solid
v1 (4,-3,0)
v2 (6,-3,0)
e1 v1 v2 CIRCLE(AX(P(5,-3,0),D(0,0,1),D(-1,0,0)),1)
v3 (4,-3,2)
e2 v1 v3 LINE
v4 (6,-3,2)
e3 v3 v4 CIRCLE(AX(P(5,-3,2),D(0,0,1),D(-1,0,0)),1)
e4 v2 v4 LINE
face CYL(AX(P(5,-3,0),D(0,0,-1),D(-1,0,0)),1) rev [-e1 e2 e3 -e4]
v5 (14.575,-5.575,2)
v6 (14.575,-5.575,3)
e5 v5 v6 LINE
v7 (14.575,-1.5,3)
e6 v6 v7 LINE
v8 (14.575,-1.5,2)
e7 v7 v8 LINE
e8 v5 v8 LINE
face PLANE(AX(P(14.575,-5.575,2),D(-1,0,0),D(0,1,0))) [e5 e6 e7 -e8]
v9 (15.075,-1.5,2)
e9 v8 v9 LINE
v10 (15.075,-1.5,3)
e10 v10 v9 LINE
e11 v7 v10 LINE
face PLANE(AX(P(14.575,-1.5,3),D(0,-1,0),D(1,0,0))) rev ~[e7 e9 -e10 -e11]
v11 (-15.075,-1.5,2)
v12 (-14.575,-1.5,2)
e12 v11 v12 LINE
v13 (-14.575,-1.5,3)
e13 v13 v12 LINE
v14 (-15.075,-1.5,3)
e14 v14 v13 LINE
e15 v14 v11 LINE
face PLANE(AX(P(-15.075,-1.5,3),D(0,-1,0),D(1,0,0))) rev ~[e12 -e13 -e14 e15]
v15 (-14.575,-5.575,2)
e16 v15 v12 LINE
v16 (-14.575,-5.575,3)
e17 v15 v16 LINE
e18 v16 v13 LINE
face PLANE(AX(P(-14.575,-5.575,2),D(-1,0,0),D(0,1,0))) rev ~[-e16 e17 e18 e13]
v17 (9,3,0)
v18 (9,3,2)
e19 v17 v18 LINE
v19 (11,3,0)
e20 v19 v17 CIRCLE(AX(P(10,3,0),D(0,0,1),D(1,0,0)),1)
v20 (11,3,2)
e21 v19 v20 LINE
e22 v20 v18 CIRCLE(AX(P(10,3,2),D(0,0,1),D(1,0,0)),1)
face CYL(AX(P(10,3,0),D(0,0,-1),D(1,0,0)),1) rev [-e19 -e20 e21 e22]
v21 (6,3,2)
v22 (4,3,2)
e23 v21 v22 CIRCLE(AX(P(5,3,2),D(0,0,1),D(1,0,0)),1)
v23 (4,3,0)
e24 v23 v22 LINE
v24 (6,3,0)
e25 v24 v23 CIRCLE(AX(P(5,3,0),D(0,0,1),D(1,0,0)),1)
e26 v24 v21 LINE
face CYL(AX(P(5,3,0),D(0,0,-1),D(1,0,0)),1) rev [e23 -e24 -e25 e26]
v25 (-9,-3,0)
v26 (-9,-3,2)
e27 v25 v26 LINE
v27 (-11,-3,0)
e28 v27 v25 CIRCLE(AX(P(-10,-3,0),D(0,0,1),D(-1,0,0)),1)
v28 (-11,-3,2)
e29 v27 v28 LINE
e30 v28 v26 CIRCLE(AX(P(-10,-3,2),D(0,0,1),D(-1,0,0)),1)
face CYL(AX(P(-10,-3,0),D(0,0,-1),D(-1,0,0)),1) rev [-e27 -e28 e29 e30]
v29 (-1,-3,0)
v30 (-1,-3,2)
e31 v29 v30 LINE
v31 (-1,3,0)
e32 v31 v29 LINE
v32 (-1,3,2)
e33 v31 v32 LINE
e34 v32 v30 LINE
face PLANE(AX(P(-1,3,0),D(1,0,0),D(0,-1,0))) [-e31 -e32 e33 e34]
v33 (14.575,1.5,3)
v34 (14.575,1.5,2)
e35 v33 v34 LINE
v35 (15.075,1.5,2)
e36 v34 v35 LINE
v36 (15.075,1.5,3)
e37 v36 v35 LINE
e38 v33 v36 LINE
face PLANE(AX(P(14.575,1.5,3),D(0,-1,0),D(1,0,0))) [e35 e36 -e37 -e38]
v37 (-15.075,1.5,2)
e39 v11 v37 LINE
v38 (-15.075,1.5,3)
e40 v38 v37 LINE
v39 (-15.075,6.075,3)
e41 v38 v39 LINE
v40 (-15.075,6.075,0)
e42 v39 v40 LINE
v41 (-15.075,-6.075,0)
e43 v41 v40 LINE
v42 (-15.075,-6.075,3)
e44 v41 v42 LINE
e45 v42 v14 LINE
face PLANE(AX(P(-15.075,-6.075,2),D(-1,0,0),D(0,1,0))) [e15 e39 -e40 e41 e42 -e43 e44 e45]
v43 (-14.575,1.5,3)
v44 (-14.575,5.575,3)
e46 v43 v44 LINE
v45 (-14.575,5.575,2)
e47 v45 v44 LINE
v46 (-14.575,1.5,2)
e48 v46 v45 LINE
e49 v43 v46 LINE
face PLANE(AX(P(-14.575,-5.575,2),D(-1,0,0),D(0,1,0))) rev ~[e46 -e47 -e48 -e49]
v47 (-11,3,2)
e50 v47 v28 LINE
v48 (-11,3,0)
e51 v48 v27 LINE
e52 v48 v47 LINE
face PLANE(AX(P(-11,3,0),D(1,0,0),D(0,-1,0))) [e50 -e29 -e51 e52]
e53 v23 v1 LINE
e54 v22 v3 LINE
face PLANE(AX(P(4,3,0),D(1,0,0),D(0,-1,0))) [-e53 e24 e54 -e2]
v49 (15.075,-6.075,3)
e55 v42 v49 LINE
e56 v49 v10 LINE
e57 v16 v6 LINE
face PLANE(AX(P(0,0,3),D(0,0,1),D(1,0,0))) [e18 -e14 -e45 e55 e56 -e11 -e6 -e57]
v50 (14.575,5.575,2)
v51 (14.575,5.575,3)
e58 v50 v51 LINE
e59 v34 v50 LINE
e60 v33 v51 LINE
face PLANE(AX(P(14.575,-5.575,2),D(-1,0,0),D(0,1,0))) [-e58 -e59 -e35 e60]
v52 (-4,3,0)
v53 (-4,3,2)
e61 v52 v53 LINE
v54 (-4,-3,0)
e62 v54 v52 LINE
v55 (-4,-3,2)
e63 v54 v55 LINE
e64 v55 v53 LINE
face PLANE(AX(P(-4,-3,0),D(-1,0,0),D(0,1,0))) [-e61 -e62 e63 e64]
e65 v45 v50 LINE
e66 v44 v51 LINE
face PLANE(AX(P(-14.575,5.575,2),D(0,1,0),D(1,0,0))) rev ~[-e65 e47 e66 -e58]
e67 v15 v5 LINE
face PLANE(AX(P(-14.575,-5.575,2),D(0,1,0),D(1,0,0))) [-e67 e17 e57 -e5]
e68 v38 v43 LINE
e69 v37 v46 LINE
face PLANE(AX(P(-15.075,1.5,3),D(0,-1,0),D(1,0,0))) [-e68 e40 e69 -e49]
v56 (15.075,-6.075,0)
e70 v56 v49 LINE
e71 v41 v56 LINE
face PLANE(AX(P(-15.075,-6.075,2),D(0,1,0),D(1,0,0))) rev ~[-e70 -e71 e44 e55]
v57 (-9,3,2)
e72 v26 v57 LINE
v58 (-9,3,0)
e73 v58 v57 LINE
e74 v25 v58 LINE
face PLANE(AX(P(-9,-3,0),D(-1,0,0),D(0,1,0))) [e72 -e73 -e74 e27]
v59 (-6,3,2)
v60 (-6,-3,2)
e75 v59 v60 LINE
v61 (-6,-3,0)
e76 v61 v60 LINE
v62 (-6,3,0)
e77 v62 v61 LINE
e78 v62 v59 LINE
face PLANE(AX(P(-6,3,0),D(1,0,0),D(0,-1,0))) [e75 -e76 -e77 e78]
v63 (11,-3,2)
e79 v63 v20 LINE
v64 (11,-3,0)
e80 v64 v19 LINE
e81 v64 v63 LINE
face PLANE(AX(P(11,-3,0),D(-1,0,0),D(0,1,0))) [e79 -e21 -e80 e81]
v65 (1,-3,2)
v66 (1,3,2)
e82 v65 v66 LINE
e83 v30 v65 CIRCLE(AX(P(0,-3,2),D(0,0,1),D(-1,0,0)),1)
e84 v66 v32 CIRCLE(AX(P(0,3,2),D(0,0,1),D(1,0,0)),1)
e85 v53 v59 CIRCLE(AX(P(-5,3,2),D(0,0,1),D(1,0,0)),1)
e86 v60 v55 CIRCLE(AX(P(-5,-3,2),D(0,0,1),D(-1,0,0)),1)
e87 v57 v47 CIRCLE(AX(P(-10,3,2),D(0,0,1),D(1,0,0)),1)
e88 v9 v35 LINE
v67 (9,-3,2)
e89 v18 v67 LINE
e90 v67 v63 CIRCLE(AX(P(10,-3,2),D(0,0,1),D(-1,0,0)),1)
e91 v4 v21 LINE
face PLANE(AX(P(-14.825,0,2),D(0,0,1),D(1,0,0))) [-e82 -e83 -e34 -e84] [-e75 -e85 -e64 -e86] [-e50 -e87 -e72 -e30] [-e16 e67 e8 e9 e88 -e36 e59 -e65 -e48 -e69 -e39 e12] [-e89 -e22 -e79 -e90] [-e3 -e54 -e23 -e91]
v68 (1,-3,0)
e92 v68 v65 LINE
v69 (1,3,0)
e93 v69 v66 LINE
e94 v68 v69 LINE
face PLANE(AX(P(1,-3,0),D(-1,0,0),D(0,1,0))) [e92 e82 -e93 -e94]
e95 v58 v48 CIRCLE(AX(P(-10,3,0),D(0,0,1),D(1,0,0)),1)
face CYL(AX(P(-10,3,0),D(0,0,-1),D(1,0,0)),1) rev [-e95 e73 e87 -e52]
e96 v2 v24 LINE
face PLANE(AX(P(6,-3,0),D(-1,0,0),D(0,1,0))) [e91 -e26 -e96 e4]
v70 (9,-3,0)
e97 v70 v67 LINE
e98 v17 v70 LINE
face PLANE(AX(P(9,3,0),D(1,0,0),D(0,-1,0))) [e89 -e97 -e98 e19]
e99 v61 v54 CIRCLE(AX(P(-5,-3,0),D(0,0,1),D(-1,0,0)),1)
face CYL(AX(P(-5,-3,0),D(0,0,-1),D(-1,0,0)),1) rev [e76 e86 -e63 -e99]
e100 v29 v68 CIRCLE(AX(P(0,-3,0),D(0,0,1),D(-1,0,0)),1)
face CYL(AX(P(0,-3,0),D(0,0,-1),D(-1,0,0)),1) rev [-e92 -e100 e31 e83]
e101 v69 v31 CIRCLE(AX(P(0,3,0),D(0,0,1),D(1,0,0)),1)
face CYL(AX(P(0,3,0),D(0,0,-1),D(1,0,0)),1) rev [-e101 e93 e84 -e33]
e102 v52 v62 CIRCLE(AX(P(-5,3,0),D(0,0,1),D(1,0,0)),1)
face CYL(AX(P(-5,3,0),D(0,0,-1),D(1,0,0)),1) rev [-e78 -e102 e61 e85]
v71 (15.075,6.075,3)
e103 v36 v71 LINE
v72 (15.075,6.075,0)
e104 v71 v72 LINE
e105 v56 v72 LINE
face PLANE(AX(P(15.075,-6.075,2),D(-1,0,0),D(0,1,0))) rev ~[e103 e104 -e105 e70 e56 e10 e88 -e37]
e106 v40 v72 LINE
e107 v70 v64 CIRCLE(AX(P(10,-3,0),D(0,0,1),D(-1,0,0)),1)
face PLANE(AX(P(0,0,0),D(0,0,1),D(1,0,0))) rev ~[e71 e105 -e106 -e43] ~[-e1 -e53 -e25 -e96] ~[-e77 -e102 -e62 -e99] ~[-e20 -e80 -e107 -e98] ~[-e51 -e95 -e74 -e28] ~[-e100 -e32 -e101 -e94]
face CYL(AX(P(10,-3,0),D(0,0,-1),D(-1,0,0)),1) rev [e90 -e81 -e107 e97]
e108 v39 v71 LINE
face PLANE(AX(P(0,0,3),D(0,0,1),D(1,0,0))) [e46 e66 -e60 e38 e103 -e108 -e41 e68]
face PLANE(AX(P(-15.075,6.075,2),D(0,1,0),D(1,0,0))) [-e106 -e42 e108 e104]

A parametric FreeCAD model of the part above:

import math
import FreeCAD as App
import Part
import Sketcher

V = App.Vector
Q = App.Units.Quantity

doc = App.newDocument("Part")
params = doc.addObject("Spreadsheet::Sheet", "Params")
for row, (alias, value) in enumerate([
    ("sketch1_width", "30.15 mm"),
    ("sketch1_height", "12.15 mm"),
    ("pad1_length", "2 mm"),
    ("sketch2_width", "30.15 mm"),
    ("sketch2_width2", "29.15 mm"),
    ("sketch2_height", "12.15 mm"),
    ("sketch2_height2", "11.15 mm"),
    ("pad2_length", "1 mm"),
    ("sketch3_radius", "1 mm"),
    ("sketch3_height", "6 mm"),
    ("pocket1_length", "2 mm"),
    ("sketch4_height", "3 mm"),
    ("sketch4_width", "0.5 mm"),
    ("pocket2_length", "1 mm"),
], start=1):
    params.set(f"A{row}", alias)
    params.set(f"B{row}", "=" + value)
    params.setAlias(f"B{row}", alias)

body = doc.addObject("PartDesign::Body", "Body")

# Sketch on XY plane
sketch1 = body.newObject("Sketcher::SketchObject", "Sketch")
sketch1.AttachmentSupport = (doc.getObject("XY_Plane"), [""])
sketch1.MapMode = "FlatFace"
sketch1.addGeometry([
    Part.LineSegment(V(-15, 6, 0), V(-15, -6, 0)),
    Part.LineSegment(V(-15, -6, 0), V(15, -6, 0)),
    Part.LineSegment(V(15, -6, 0), V(15, 6, 0)),
    Part.LineSegment(V(15, 6, 0), V(-15, 6, 0)),
], False)
sketch1.addConstraint([
    Sketcher.Constraint("Coincident", 0, 2, 1, 1),
    Sketcher.Constraint("Coincident", 1, 2, 2, 1),
    Sketcher.Constraint("Coincident", 2, 2, 3, 1),
    Sketcher.Constraint("Coincident", 3, 2, 0, 1),
    Sketcher.Constraint("Vertical", 0),
    Sketcher.Constraint("Horizontal", 1),
    Sketcher.Constraint("Vertical", 2),
    Sketcher.Constraint("Horizontal", 3),
    Sketcher.Constraint("Symmetric", 0, 2, 2, 2, -1, 1),
    Sketcher.Constraint("DistanceX", 1, 1, 1, 2, Q("30.15 mm")),
    Sketcher.Constraint("DistanceY", 0, 2, 0, 1, Q("12.15 mm")),
])
sketch1.setExpression("Constraints[9]", "Params.sketch1_width")
sketch1.setExpression("Constraints[10]", "Params.sketch1_height")
pad1 = body.newObject("PartDesign::Pad", "Pad")
pad1.Profile = sketch1
pad1.setExpression("Length", "Params.pad1_length")

# Sketch on XY plane
sketch2 = body.newObject("Sketcher::SketchObject", "Sketch001")
sketch2.AttachmentSupport = (doc.getObject("XY_Plane"), [""])
sketch2.MapMode = "FlatFace"
sketch2.AttachmentOffset = App.Placement(V(0, 0, 2), App.Rotation())
sketch2.addGeometry([
    Part.LineSegment(V(-15, 6, 0), V(-15, -6, 0)),  # 0
    Part.LineSegment(V(-15, -6, 0), V(15, -6, 0)),  # 1
    Part.LineSegment(V(15, -6, 0), V(15, 6, 0)),  # 2
    Part.LineSegment(V(15, 6, 0), V(-15, 6, 0)),  # 3
    Part.LineSegment(V(15, -6, 0), V(-15, -6, 0)),  # 4
    Part.LineSegment(V(-15, -6, 0), V(-15, 6, 0)),  # 5
    Part.LineSegment(V(-15, 6, 0), V(15, 6, 0)),  # 6
    Part.LineSegment(V(15, 6, 0), V(15, -6, 0)),  # 7
], False)
sketch2.addConstraint([
    Sketcher.Constraint("Coincident", 0, 2, 1, 1),
    Sketcher.Constraint("Coincident", 1, 2, 2, 1),
    Sketcher.Constraint("Coincident", 2, 2, 3, 1),
    Sketcher.Constraint("Coincident", 3, 2, 0, 1),
    Sketcher.Constraint("Coincident", 4, 2, 5, 1),
    Sketcher.Constraint("Coincident", 5, 2, 6, 1),
    Sketcher.Constraint("Coincident", 6, 2, 7, 1),
    Sketcher.Constraint("Coincident", 7, 2, 4, 1),
    Sketcher.Constraint("Vertical", 0),
    Sketcher.Constraint("Horizontal", 1),
    Sketcher.Constraint("Vertical", 2),
    Sketcher.Constraint("Horizontal", 3),
    Sketcher.Constraint("Horizontal", 4),
    Sketcher.Constraint("Vertical", 5),
    Sketcher.Constraint("Horizontal", 6),
    Sketcher.Constraint("Vertical", 7),
    Sketcher.Constraint("Symmetric", 0, 2, 2, 2, -1, 1),
    Sketcher.Constraint("Symmetric", 4, 2, 6, 2, -1, 1),
    Sketcher.Constraint("DistanceX", 1, 1, 1, 2, Q("30.15 mm")),
    Sketcher.Constraint("DistanceX", 4, 2, 4, 1, Q("29.15 mm")),
    Sketcher.Constraint("DistanceY", 0, 2, 0, 1, Q("12.15 mm")),
    Sketcher.Constraint("DistanceY", 5, 1, 5, 2, Q("11.15 mm")),
])
sketch2.setExpression("Constraints[18]", "Params.sketch2_width")
sketch2.setExpression("Constraints[19]", "Params.sketch2_width2")
sketch2.setExpression("Constraints[20]", "Params.sketch2_height")
sketch2.setExpression("Constraints[21]", "Params.sketch2_height2")
pad2 = body.newObject("PartDesign::Pad", "Pad001")
pad2.Profile = sketch2
pad2.setExpression("Length", "Params.pad2_length")

# Sketch on XY plane
sketch3 = body.newObject("Sketcher::SketchObject", "Sketch002")
sketch3.AttachmentSupport = (doc.getObject("XY_Plane"), [""])
sketch3.MapMode = "FlatFace"
sketch3.addGeometry([
    Part.LineSegment(V(1, 3, 0), V(1, -3, 0)),  # 0
    Part.ArcOfCircle(Part.Circle(V(0, -3, 0), V(0, 0, 1), 1), math.radians(180), math.radians(360)),  # 1
    Part.LineSegment(V(-1, -3, 0), V(-1, 3, 0)),  # 2
    Part.ArcOfCircle(Part.Circle(V(0, 3, 0), V(0, 0, 1), 1), math.radians(0), math.radians(180)),  # 3
    Part.LineSegment(V(6, 3, 0), V(6, -3, 0)),  # 4
    Part.ArcOfCircle(Part.Circle(V(5, -3, 0), V(0, 0, 1), 1), math.radians(180), math.radians(360)),  # 5
    Part.LineSegment(V(4, -3, 0), V(4, 3, 0)),  # 6
    Part.ArcOfCircle(Part.Circle(V(5, 3, 0), V(0, 0, 1), 1), math.radians(0), math.radians(180)),  # 7
    Part.LineSegment(V(11, 3, 0), V(11, -3, 0)),  # 8
    Part.ArcOfCircle(Part.Circle(V(10, -3, 0), V(0, 0, 1), 1), math.radians(180), math.radians(360)),  # 9
    Part.LineSegment(V(9, -3, 0), V(9, 3, 0)),  # 10
    Part.ArcOfCircle(Part.Circle(V(10, 3, 0), V(0, 0, 1), 1), math.radians(0), math.radians(180)),  # 11
    Part.LineSegment(V(-4, 3, 0), V(-4, -3, 0)),  # 12
    Part.ArcOfCircle(Part.Circle(V(-5, -3, 0), V(0, 0, 1), 1), math.radians(180), math.radians(360)),  # 13
    Part.LineSegment(V(-6, -3, 0), V(-6, 3, 0)),  # 14
    Part.ArcOfCircle(Part.Circle(V(-5, 3, 0), V(0, 0, 1), 1), math.radians(0), math.radians(180)),  # 15
    Part.LineSegment(V(-9, 3, 0), V(-9, -3, 0)),  # 16
    Part.ArcOfCircle(Part.Circle(V(-10, -3, 0), V(0, 0, 1), 1), math.radians(180), math.radians(360)),  # 17
    Part.LineSegment(V(-11, -3, 0), V(-11, 3, 0)),  # 18
    Part.ArcOfCircle(Part.Circle(V(-10, 3, 0), V(0, 0, 1), 1), math.radians(0), math.radians(180)),  # 19
], False)
sketch3.addConstraint([
    Sketcher.Constraint("Tangent", 0, 2, 1, 2),
    Sketcher.Constraint("Tangent", 1, 1, 2, 1),
    Sketcher.Constraint("Tangent", 2, 2, 3, 2),
    Sketcher.Constraint("Tangent", 3, 1, 0, 1),
    Sketcher.Constraint("Tangent", 4, 2, 5, 2),
    Sketcher.Constraint("Tangent", 5, 1, 6, 1),
    Sketcher.Constraint("Tangent", 6, 2, 7, 2),
    Sketcher.Constraint("Tangent", 7, 1, 4, 1),
    Sketcher.Constraint("Tangent", 8, 2, 9, 2),
    Sketcher.Constraint("Tangent", 9, 1, 10, 1),
    Sketcher.Constraint("Tangent", 10, 2, 11, 2),
    Sketcher.Constraint("Tangent", 11, 1, 8, 1),
    Sketcher.Constraint("Tangent", 12, 2, 13, 2),
    Sketcher.Constraint("Tangent", 13, 1, 14, 1),
    Sketcher.Constraint("Tangent", 14, 2, 15, 2),
    Sketcher.Constraint("Tangent", 15, 1, 12, 1),
    Sketcher.Constraint("Tangent", 16, 2, 17, 2),
    Sketcher.Constraint("Tangent", 17, 1, 18, 1),
    Sketcher.Constraint("Tangent", 18, 2, 19, 2),
    Sketcher.Constraint("Tangent", 19, 1, 16, 1),
    Sketcher.Constraint("Vertical", 0),
    Sketcher.Constraint("Vertical", 2),
    Sketcher.Constraint("Vertical", 4),
    Sketcher.Constraint("Vertical", 6),
    Sketcher.Constraint("Vertical", 8),
    Sketcher.Constraint("Vertical", 10),
    Sketcher.Constraint("Vertical", 12),
    Sketcher.Constraint("Vertical", 14),
    Sketcher.Constraint("Vertical", 16),
    Sketcher.Constraint("Vertical", 18),
    Sketcher.Constraint("Equal", 3, 5),
    Sketcher.Constraint("Equal", 7, 9),
    Sketcher.Constraint("Equal", 11, 13),
    Sketcher.Constraint("Equal", 15, 17),
    Sketcher.Constraint("Symmetric", 1, 3, 3, 3, -1, 1),
    Sketcher.Constraint("Symmetric", 7, 3, 13, 3, -1, 1),
    Sketcher.Constraint("Symmetric", 11, 3, 17, 3, -1, 1),
    Sketcher.Constraint("Horizontal", 1, 3, 5, 3),
    Sketcher.Constraint("Horizontal", 3, 3, 7, 3),
    Sketcher.Constraint("Horizontal", 5, 3, 9, 3),
    Sketcher.Constraint("Horizontal", 7, 3, 11, 3),
    Sketcher.Constraint("Horizontal", 11, 3, 15, 3),
    Sketcher.Constraint("Horizontal", 15, 3, 19, 3),
    Sketcher.Constraint("Radius", 1, Q("1 mm")),
    Sketcher.Constraint("DistanceY", 0, 2, 0, 1, Q("6 mm")),
    Sketcher.Constraint("DistanceX", -1, 1, 5, 3, Q("5 mm")),
    Sketcher.Constraint("DistanceX", -1, 1, 9, 3, Q("10 mm")),
])
sketch3.setExpression("Constraints[43]", "Params.sketch3_radius")
sketch3.setExpression("Constraints[44]", "Params.sketch3_height")
pocket1 = body.newObject("PartDesign::Pocket", "Pocket")
pocket1.Profile = sketch3
pocket1.setExpression("Length", "Params.pocket1_length")
pocket1.Reversed = True

# Sketch on XY plane
sketch4 = body.newObject("Sketcher::SketchObject", "Sketch003")
sketch4.AttachmentSupport = (doc.getObject("XY_Plane"), [""])
sketch4.MapMode = "FlatFace"
sketch4.AttachmentOffset = App.Placement(V(0, 0, 3), App.Rotation())
sketch4.addGeometry([
    Part.LineSegment(V(-15.1, 1.5, 0), V(-15.1, -1.5, 0)),  # 0
    Part.LineSegment(V(-15.1, -1.5, 0), V(-14.6, -1.5, 0)),  # 1
    Part.LineSegment(V(-14.6, -1.5, 0), V(-14.6, 1.5, 0)),  # 2
    Part.LineSegment(V(-14.6, 1.5, 0), V(-15.1, 1.5, 0)),  # 3
    Part.LineSegment(V(14.6, 1.5, 0), V(14.6, -1.5, 0)),  # 4
    Part.LineSegment(V(14.6, -1.5, 0), V(15.1, -1.5, 0)),  # 5
    Part.LineSegment(V(15.1, -1.5, 0), V(15.1, 1.5, 0)),  # 6
    Part.LineSegment(V(15.1, 1.5, 0), V(14.6, 1.5, 0)),  # 7
], False)
sketch4.addConstraint([
    Sketcher.Constraint("Coincident", 0, 2, 1, 1),
    Sketcher.Constraint("Coincident", 1, 2, 2, 1),
    Sketcher.Constraint("Coincident", 2, 2, 3, 1),
    Sketcher.Constraint("Coincident", 3, 2, 0, 1),
    Sketcher.Constraint("Coincident", 4, 2, 5, 1),
    Sketcher.Constraint("Coincident", 5, 2, 6, 1),
    Sketcher.Constraint("Coincident", 6, 2, 7, 1),
    Sketcher.Constraint("Coincident", 7, 2, 4, 1),
    Sketcher.Constraint("Vertical", 0),
    Sketcher.Constraint("Horizontal", 1),
    Sketcher.Constraint("Vertical", 2),
    Sketcher.Constraint("Horizontal", 3),
    Sketcher.Constraint("Vertical", 4),
    Sketcher.Constraint("Horizontal", 5),
    Sketcher.Constraint("Vertical", 6),
    Sketcher.Constraint("Horizontal", 7),
    Sketcher.Constraint("Symmetric", 2, 2, 4, 2, -1, 1),
    Sketcher.Constraint("Symmetric", 0, 2, 6, 2, -1, 1),
    Sketcher.Constraint("Horizontal", 1, 2, 4, 2),
    Sketcher.Constraint("DistanceY", 0, 2, 0, 1, Q("3 mm")),
    Sketcher.Constraint("DistanceX", 1, 1, 1, 2, Q("0.5 mm")),
    Sketcher.Constraint("DistanceX", 1, 2, 4, 2, Q("29.15 mm")),
])
sketch4.setExpression("Constraints[19]", "Params.sketch4_height")
sketch4.setExpression("Constraints[20]", "Params.sketch4_width")
pocket2 = body.newObject("PartDesign::Pocket", "Pocket001")
pocket2.Profile = sketch4
pocket2.setExpression("Length", "Params.pocket2_length")

doc.recompute()
